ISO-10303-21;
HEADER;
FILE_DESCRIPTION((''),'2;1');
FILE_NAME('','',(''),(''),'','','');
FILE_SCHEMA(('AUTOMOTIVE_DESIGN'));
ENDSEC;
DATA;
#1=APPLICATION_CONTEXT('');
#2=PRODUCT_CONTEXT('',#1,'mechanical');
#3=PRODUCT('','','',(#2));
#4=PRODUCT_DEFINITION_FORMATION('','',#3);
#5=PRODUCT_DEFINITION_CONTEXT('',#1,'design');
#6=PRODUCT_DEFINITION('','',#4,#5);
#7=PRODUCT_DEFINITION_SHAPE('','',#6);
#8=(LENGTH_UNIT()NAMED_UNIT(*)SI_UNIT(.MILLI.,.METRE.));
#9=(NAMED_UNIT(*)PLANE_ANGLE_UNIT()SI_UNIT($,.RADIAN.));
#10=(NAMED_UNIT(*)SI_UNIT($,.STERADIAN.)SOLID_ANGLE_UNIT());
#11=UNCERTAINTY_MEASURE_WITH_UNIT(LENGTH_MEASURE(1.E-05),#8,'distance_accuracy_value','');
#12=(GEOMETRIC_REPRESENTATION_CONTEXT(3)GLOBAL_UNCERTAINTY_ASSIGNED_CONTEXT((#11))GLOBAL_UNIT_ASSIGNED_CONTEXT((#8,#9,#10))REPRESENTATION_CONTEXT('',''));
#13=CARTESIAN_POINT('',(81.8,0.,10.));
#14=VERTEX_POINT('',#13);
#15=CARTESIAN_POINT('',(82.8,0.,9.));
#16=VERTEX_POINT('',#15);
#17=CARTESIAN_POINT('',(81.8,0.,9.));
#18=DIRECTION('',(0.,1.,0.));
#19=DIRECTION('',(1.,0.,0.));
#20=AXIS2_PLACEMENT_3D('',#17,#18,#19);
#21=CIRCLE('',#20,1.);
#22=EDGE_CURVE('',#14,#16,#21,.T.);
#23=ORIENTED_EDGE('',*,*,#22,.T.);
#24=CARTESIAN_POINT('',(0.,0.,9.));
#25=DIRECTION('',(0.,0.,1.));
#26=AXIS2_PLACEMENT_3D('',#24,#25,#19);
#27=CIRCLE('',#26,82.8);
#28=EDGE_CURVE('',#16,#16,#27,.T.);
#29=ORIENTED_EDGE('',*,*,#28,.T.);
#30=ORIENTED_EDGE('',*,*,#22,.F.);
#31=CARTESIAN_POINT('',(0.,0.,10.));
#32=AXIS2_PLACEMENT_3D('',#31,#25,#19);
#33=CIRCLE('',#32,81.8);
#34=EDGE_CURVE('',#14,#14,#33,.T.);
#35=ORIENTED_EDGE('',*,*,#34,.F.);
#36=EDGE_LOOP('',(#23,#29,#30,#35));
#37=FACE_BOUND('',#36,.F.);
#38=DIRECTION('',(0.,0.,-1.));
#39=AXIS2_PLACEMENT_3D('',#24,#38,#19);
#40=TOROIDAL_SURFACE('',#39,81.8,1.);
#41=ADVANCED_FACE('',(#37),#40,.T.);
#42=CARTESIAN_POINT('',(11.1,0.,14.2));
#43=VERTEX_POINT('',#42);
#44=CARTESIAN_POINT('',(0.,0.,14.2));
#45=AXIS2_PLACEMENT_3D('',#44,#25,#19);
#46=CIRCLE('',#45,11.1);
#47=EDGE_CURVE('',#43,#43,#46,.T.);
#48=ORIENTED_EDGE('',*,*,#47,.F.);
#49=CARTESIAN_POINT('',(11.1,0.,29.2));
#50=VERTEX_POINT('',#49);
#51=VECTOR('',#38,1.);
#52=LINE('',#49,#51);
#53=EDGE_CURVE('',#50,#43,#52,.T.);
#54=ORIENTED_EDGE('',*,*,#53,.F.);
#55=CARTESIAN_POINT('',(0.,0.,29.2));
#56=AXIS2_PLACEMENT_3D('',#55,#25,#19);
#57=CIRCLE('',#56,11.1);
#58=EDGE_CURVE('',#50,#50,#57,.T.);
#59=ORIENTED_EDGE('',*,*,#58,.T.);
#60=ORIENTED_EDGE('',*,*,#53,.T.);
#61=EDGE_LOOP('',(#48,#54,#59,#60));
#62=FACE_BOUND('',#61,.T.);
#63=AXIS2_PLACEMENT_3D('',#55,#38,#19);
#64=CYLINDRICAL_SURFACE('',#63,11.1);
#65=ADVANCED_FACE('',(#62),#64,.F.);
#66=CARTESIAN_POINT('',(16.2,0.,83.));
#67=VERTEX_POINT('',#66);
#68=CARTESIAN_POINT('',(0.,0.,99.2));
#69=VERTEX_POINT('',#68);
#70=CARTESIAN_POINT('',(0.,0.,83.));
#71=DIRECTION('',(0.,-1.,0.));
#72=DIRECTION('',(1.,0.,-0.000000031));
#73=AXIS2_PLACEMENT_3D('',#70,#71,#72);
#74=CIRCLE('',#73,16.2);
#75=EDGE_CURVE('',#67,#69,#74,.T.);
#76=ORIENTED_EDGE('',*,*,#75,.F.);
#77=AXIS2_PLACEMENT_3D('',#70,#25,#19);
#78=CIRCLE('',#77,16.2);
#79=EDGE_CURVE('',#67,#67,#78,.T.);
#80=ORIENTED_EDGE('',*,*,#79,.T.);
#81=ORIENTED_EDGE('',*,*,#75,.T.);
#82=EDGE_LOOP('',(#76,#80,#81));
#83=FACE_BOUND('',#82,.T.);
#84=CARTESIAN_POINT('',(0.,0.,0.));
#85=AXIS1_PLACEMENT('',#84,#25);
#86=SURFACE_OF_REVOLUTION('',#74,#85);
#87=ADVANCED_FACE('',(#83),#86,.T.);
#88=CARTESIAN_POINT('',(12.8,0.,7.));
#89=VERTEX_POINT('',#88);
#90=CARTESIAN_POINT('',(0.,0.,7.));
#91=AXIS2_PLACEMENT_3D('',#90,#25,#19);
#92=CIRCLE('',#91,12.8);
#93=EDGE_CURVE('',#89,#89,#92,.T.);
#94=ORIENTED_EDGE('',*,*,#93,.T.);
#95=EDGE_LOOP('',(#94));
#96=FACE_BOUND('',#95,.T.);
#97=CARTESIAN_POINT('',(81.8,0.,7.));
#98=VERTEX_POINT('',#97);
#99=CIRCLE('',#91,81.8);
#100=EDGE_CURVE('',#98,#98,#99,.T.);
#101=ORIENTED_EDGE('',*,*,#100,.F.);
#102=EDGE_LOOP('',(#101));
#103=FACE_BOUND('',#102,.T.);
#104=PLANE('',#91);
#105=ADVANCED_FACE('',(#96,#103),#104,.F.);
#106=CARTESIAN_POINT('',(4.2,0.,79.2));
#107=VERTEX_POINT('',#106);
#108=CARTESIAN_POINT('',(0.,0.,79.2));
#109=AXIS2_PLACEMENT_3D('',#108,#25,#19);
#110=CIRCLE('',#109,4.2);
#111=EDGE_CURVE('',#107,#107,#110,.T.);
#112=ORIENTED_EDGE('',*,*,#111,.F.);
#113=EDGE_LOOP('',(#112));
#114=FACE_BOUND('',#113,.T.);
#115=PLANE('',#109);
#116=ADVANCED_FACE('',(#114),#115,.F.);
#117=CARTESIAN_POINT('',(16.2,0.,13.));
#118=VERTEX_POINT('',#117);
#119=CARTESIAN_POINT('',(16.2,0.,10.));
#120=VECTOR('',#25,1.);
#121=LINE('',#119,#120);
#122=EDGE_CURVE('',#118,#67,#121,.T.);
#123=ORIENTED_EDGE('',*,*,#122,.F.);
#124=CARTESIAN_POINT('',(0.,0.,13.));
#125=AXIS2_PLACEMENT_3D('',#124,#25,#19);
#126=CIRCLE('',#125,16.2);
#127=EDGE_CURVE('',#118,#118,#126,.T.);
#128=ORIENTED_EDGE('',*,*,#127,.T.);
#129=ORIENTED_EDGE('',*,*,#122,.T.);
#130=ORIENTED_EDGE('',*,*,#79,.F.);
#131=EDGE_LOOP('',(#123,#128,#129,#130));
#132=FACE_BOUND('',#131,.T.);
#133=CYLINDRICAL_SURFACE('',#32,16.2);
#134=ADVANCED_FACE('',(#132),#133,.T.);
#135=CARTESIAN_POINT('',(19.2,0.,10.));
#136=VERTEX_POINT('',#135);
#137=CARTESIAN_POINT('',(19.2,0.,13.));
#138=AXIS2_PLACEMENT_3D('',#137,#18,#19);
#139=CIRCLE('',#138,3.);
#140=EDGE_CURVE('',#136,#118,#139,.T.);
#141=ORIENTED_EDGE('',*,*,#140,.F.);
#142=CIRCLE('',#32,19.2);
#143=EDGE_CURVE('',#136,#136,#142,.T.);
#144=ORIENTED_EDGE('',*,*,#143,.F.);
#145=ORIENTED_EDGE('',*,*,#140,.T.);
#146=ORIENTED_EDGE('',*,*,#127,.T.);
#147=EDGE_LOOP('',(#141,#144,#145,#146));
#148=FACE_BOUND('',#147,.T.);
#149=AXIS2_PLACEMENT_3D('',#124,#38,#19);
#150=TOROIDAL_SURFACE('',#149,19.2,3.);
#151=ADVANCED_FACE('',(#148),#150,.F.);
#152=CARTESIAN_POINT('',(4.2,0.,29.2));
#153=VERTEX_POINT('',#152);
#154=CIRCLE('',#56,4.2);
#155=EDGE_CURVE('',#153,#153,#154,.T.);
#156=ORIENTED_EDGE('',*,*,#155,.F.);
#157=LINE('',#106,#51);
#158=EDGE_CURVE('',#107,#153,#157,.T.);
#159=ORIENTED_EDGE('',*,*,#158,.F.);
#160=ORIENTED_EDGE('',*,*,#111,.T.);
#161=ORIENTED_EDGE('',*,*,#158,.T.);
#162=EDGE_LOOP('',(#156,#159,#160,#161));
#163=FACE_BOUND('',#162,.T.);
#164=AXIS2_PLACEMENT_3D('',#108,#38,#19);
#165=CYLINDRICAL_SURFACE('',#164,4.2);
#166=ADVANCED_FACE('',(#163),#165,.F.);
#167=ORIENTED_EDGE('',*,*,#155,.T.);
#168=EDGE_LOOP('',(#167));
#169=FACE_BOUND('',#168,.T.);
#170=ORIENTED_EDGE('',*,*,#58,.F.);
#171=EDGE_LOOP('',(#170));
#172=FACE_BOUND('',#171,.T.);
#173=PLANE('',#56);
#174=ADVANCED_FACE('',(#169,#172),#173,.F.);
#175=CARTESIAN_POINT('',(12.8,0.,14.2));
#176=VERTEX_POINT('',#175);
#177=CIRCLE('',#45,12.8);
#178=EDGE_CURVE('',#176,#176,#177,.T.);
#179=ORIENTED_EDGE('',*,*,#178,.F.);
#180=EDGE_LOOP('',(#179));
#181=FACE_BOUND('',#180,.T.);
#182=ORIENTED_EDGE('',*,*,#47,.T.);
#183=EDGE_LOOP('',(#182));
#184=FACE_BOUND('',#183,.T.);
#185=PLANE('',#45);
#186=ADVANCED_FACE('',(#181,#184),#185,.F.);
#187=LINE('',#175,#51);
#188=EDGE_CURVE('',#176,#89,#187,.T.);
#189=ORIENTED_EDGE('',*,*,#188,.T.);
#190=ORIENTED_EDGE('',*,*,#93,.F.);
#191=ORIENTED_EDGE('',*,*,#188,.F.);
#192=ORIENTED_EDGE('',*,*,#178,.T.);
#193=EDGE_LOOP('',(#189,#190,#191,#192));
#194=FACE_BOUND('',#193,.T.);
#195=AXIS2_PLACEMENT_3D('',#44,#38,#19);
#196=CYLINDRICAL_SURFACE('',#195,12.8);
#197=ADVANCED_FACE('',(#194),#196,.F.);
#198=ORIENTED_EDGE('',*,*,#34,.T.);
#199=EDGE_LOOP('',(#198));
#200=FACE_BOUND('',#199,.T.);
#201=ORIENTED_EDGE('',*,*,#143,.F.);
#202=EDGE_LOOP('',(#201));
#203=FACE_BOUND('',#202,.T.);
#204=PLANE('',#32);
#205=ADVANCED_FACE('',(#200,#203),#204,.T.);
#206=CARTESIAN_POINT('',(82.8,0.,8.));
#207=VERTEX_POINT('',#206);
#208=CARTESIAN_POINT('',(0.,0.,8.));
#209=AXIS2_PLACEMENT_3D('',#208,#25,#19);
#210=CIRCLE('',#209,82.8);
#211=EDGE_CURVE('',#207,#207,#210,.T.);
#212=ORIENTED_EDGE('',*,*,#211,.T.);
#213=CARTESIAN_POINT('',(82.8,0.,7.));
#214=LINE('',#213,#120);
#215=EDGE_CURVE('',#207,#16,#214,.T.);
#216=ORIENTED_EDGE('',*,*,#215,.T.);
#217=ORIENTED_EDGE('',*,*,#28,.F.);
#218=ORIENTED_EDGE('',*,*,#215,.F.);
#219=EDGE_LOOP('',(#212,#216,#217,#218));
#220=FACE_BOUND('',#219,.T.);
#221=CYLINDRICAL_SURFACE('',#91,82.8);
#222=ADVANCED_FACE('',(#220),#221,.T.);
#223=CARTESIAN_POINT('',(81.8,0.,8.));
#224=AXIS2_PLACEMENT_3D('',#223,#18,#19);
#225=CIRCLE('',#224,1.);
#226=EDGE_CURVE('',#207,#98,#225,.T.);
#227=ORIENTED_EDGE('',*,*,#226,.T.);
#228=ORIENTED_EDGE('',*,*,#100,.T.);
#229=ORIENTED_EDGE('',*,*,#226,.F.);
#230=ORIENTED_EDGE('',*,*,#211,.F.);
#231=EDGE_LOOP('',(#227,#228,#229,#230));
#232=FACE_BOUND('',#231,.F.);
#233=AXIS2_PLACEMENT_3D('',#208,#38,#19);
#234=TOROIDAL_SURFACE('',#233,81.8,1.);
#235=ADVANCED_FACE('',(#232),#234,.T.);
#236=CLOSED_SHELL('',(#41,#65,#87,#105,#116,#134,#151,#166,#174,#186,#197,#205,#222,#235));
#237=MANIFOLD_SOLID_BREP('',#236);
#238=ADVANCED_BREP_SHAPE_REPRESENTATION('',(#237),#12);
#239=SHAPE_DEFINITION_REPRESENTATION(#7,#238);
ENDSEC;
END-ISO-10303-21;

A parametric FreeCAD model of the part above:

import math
import FreeCAD as App
import Part
import Sketcher
from FreeCAD import Vector
Q = App.Units.Quantity


def edges_at(feature, points):
    """Names of the edges that pass closest to the given points."""
    edges = feature.Shape.Edges
    near = lambda p: min(range(len(edges)), key=lambda i: edges[i].distToShape(Part.Vertex(*p))[0])
    return sorted({f"Edge{near(p) + 1}" for p in points})

doc = App.newDocument("Part")
params = doc.addObject("Spreadsheet::Sheet", "Params")
for row, (alias, value) in enumerate([
    ("sketch1_radius", "16.2 mm"),
    ("sketch1_width", "70 mm"),
    ("sketch1_height", "50 mm"),
    ("sketch1_height2", "15 mm"),
    ("sketch1_height3", "3 mm"),
    ("revolution_angle", "360 deg"),
    ("fillet_radius", "3 mm"),
    ("fillet2_radius", "1 mm"),
], start=1):
    params.set(f"A{row}", alias)
    params.set(f"B{row}", "=" + value)
    params.setAlias(f"B{row}", alias)

body = doc.addObject("PartDesign::Body", "Body")

sketch1 = doc.addObject("Sketcher::SketchObject", "Sketch")
body.addObject(sketch1)
sketch1.AttachmentSupport = (doc.XZ_Plane, [""])
sketch1.MapMode = "FlatFace"
sketch1.addGeometry(Part.LineSegment(Vector(0, 79.2, 0), Vector(4.2, 79.2, 0)), False)
sketch1.addGeometry(Part.LineSegment(Vector(4.2, 79.2, 0), Vector(4.2, 29.2, 0)), False)
sketch1.addGeometry(Part.LineSegment(Vector(4.2, 29.2, 0), Vector(11.1, 29.2, 0)), False)
sketch1.addGeometry(Part.LineSegment(Vector(11.1, 29.2, 0), Vector(11.1, 14.2, 0)), False)
sketch1.addGeometry(Part.LineSegment(Vector(11.1, 14.2, 0), Vector(12.8, 14.2, 0)), False)
sketch1.addGeometry(Part.LineSegment(Vector(12.8, 14.2, 0), Vector(12.8, 7, 0)), False)
sketch1.addGeometry(Part.LineSegment(Vector(12.8, 7, 0), Vector(82.8, 7, 0)), False)
sketch1.addGeometry(Part.LineSegment(Vector(82.8, 7, 0), Vector(82.8, 10, 0)), False)
sketch1.addGeometry(Part.LineSegment(Vector(82.8, 10, 0), Vector(16.2, 10, 0)), False)
sketch1.addGeometry(Part.LineSegment(Vector(16.2, 10, 0), Vector(16.2, 83, 0)), False)
sketch1.addGeometry(Part.ArcOfCircle(Part.Circle(Vector(0, 83, 0), Vector(0, 0, 1), 16.2), math.radians(-0.000002), math.radians(90.000002)), False)
sketch1.addGeometry(Part.LineSegment(Vector(0, 99.2, 0), Vector(0, 79.2, 0)), False)
sketch1.addConstraint(Sketcher.Constraint("Coincident", 0, 2, 1, 1))
sketch1.addConstraint(Sketcher.Constraint("Coincident", 1, 2, 2, 1))
sketch1.addConstraint(Sketcher.Constraint("Coincident", 2, 2, 3, 1))
sketch1.addConstraint(Sketcher.Constraint("Coincident", 3, 2, 4, 1))
sketch1.addConstraint(Sketcher.Constraint("Coincident", 4, 2, 5, 1))
sketch1.addConstraint(Sketcher.Constraint("Coincident", 5, 2, 6, 1))
sketch1.addConstraint(Sketcher.Constraint("Coincident", 6, 2, 7, 1))
sketch1.addConstraint(Sketcher.Constraint("Coincident", 7, 2, 8, 1))
sketch1.addConstraint(Sketcher.Constraint("Coincident", 8, 2, 9, 1))
sketch1.addConstraint(Sketcher.Constraint("Tangent", 9, 2, 10, 1))
sketch1.addConstraint(Sketcher.Constraint("Coincident", 10, 2, 11, 1))
sketch1.addConstraint(Sketcher.Constraint("Coincident", 11, 2, 0, 1))
sketch1.addConstraint(Sketcher.Constraint("Horizontal", 0))
sketch1.addConstraint(Sketcher.Constraint("Vertical", 1))
sketch1.addConstraint(Sketcher.Constraint("Horizontal", 2))
sketch1.addConstraint(Sketcher.Constraint("Vertical", 3))
sketch1.addConstraint(Sketcher.Constraint("Horizontal", 4))
sketch1.addConstraint(Sketcher.Constraint("Vertical", 5))
sketch1.addConstraint(Sketcher.Constraint("Horizontal", 6))
sketch1.addConstraint(Sketcher.Constraint("Vertical", 7))
sketch1.addConstraint(Sketcher.Constraint("Horizontal", 8))
sketch1.addConstraint(Sketcher.Constraint("Vertical", 9))
sketch1.addConstraint(Sketcher.Constraint("Vertical", 11))
sketch1.addConstraint(Sketcher.Constraint("PointOnObject", 10, 3, -2))
sketch1.addConstraint(Sketcher.Constraint("PointOnObject", 10, 2, -2))
sketch1.addConstraint(Sketcher.Constraint("Radius", 10, Q("16.2 mm")))
sketch1.addConstraint(Sketcher.Constraint("DistanceX", 6, 1, 6, 2, Q("70 mm")))
sketch1.addConstraint(Sketcher.Constraint("DistanceY", 1, 2, 1, 1, Q("50 mm")))
sketch1.addConstraint(Sketcher.Constraint("DistanceY", 3, 2, 3, 1, Q("15 mm")))
sketch1.addConstraint(Sketcher.Constraint("DistanceY", 7, 1, 7, 2, Q("3 mm")))
sketch1.addConstraint(Sketcher.Constraint("DistanceY", 9, 1, 9, 2, Q("73 mm")))
sketch1.addConstraint(Sketcher.Constraint("DistanceY", 11, 2, 11, 1, Q("20 mm")))
sketch1.addConstraint(Sketcher.Constraint("DistanceX", 0, 1, 0, 2, Q("4.2 mm")))
sketch1.addConstraint(Sketcher.Constraint("DistanceX", 2, 1, 2, 2, Q("6.9 mm")))
sketch1.addConstraint(Sketcher.Constraint("DistanceX", 4, 1, 4, 2, Q("1.7 mm")))
sketch1.addConstraint(Sketcher.Constraint("DistanceY", -1, 1, 10, 3, Q("83 mm")))
sketch1.setExpression("Constraints[25]", "Params.sketch1_radius")
sketch1.setExpression("Constraints[26]", "Params.sketch1_width")
sketch1.setExpression("Constraints[27]", "Params.sketch1_height")
sketch1.setExpression("Constraints[28]", "Params.sketch1_height2")
sketch1.setExpression("Constraints[29]", "Params.sketch1_height3")
revolution = doc.addObject("PartDesign::Revolution", "Revolution")
body.addObject(revolution)
revolution.Profile = sketch1
revolution.ReferenceAxis = (sketch1, ["V_Axis"])
revolution.setExpression("Angle", "Params.revolution_angle")
doc.recompute()

fillet = doc.addObject("PartDesign::Fillet", "Fillet")
body.addObject(fillet)
fillet.Base = (revolution, edges_at(revolution, [(-16.2, 0, 10)]))
fillet.setExpression("Radius", "Params.fillet_radius")
doc.recompute()

fillet2 = doc.addObject("PartDesign::Fillet", "Fillet001")
body.addObject(fillet2)
fillet2.Base = (fillet, edges_at(fillet, [(-82.8, 0, 10), (-82.8, 0, 7)]))
fillet2.setExpression("Radius", "Params.fillet2_radius")

doc.recompute()
